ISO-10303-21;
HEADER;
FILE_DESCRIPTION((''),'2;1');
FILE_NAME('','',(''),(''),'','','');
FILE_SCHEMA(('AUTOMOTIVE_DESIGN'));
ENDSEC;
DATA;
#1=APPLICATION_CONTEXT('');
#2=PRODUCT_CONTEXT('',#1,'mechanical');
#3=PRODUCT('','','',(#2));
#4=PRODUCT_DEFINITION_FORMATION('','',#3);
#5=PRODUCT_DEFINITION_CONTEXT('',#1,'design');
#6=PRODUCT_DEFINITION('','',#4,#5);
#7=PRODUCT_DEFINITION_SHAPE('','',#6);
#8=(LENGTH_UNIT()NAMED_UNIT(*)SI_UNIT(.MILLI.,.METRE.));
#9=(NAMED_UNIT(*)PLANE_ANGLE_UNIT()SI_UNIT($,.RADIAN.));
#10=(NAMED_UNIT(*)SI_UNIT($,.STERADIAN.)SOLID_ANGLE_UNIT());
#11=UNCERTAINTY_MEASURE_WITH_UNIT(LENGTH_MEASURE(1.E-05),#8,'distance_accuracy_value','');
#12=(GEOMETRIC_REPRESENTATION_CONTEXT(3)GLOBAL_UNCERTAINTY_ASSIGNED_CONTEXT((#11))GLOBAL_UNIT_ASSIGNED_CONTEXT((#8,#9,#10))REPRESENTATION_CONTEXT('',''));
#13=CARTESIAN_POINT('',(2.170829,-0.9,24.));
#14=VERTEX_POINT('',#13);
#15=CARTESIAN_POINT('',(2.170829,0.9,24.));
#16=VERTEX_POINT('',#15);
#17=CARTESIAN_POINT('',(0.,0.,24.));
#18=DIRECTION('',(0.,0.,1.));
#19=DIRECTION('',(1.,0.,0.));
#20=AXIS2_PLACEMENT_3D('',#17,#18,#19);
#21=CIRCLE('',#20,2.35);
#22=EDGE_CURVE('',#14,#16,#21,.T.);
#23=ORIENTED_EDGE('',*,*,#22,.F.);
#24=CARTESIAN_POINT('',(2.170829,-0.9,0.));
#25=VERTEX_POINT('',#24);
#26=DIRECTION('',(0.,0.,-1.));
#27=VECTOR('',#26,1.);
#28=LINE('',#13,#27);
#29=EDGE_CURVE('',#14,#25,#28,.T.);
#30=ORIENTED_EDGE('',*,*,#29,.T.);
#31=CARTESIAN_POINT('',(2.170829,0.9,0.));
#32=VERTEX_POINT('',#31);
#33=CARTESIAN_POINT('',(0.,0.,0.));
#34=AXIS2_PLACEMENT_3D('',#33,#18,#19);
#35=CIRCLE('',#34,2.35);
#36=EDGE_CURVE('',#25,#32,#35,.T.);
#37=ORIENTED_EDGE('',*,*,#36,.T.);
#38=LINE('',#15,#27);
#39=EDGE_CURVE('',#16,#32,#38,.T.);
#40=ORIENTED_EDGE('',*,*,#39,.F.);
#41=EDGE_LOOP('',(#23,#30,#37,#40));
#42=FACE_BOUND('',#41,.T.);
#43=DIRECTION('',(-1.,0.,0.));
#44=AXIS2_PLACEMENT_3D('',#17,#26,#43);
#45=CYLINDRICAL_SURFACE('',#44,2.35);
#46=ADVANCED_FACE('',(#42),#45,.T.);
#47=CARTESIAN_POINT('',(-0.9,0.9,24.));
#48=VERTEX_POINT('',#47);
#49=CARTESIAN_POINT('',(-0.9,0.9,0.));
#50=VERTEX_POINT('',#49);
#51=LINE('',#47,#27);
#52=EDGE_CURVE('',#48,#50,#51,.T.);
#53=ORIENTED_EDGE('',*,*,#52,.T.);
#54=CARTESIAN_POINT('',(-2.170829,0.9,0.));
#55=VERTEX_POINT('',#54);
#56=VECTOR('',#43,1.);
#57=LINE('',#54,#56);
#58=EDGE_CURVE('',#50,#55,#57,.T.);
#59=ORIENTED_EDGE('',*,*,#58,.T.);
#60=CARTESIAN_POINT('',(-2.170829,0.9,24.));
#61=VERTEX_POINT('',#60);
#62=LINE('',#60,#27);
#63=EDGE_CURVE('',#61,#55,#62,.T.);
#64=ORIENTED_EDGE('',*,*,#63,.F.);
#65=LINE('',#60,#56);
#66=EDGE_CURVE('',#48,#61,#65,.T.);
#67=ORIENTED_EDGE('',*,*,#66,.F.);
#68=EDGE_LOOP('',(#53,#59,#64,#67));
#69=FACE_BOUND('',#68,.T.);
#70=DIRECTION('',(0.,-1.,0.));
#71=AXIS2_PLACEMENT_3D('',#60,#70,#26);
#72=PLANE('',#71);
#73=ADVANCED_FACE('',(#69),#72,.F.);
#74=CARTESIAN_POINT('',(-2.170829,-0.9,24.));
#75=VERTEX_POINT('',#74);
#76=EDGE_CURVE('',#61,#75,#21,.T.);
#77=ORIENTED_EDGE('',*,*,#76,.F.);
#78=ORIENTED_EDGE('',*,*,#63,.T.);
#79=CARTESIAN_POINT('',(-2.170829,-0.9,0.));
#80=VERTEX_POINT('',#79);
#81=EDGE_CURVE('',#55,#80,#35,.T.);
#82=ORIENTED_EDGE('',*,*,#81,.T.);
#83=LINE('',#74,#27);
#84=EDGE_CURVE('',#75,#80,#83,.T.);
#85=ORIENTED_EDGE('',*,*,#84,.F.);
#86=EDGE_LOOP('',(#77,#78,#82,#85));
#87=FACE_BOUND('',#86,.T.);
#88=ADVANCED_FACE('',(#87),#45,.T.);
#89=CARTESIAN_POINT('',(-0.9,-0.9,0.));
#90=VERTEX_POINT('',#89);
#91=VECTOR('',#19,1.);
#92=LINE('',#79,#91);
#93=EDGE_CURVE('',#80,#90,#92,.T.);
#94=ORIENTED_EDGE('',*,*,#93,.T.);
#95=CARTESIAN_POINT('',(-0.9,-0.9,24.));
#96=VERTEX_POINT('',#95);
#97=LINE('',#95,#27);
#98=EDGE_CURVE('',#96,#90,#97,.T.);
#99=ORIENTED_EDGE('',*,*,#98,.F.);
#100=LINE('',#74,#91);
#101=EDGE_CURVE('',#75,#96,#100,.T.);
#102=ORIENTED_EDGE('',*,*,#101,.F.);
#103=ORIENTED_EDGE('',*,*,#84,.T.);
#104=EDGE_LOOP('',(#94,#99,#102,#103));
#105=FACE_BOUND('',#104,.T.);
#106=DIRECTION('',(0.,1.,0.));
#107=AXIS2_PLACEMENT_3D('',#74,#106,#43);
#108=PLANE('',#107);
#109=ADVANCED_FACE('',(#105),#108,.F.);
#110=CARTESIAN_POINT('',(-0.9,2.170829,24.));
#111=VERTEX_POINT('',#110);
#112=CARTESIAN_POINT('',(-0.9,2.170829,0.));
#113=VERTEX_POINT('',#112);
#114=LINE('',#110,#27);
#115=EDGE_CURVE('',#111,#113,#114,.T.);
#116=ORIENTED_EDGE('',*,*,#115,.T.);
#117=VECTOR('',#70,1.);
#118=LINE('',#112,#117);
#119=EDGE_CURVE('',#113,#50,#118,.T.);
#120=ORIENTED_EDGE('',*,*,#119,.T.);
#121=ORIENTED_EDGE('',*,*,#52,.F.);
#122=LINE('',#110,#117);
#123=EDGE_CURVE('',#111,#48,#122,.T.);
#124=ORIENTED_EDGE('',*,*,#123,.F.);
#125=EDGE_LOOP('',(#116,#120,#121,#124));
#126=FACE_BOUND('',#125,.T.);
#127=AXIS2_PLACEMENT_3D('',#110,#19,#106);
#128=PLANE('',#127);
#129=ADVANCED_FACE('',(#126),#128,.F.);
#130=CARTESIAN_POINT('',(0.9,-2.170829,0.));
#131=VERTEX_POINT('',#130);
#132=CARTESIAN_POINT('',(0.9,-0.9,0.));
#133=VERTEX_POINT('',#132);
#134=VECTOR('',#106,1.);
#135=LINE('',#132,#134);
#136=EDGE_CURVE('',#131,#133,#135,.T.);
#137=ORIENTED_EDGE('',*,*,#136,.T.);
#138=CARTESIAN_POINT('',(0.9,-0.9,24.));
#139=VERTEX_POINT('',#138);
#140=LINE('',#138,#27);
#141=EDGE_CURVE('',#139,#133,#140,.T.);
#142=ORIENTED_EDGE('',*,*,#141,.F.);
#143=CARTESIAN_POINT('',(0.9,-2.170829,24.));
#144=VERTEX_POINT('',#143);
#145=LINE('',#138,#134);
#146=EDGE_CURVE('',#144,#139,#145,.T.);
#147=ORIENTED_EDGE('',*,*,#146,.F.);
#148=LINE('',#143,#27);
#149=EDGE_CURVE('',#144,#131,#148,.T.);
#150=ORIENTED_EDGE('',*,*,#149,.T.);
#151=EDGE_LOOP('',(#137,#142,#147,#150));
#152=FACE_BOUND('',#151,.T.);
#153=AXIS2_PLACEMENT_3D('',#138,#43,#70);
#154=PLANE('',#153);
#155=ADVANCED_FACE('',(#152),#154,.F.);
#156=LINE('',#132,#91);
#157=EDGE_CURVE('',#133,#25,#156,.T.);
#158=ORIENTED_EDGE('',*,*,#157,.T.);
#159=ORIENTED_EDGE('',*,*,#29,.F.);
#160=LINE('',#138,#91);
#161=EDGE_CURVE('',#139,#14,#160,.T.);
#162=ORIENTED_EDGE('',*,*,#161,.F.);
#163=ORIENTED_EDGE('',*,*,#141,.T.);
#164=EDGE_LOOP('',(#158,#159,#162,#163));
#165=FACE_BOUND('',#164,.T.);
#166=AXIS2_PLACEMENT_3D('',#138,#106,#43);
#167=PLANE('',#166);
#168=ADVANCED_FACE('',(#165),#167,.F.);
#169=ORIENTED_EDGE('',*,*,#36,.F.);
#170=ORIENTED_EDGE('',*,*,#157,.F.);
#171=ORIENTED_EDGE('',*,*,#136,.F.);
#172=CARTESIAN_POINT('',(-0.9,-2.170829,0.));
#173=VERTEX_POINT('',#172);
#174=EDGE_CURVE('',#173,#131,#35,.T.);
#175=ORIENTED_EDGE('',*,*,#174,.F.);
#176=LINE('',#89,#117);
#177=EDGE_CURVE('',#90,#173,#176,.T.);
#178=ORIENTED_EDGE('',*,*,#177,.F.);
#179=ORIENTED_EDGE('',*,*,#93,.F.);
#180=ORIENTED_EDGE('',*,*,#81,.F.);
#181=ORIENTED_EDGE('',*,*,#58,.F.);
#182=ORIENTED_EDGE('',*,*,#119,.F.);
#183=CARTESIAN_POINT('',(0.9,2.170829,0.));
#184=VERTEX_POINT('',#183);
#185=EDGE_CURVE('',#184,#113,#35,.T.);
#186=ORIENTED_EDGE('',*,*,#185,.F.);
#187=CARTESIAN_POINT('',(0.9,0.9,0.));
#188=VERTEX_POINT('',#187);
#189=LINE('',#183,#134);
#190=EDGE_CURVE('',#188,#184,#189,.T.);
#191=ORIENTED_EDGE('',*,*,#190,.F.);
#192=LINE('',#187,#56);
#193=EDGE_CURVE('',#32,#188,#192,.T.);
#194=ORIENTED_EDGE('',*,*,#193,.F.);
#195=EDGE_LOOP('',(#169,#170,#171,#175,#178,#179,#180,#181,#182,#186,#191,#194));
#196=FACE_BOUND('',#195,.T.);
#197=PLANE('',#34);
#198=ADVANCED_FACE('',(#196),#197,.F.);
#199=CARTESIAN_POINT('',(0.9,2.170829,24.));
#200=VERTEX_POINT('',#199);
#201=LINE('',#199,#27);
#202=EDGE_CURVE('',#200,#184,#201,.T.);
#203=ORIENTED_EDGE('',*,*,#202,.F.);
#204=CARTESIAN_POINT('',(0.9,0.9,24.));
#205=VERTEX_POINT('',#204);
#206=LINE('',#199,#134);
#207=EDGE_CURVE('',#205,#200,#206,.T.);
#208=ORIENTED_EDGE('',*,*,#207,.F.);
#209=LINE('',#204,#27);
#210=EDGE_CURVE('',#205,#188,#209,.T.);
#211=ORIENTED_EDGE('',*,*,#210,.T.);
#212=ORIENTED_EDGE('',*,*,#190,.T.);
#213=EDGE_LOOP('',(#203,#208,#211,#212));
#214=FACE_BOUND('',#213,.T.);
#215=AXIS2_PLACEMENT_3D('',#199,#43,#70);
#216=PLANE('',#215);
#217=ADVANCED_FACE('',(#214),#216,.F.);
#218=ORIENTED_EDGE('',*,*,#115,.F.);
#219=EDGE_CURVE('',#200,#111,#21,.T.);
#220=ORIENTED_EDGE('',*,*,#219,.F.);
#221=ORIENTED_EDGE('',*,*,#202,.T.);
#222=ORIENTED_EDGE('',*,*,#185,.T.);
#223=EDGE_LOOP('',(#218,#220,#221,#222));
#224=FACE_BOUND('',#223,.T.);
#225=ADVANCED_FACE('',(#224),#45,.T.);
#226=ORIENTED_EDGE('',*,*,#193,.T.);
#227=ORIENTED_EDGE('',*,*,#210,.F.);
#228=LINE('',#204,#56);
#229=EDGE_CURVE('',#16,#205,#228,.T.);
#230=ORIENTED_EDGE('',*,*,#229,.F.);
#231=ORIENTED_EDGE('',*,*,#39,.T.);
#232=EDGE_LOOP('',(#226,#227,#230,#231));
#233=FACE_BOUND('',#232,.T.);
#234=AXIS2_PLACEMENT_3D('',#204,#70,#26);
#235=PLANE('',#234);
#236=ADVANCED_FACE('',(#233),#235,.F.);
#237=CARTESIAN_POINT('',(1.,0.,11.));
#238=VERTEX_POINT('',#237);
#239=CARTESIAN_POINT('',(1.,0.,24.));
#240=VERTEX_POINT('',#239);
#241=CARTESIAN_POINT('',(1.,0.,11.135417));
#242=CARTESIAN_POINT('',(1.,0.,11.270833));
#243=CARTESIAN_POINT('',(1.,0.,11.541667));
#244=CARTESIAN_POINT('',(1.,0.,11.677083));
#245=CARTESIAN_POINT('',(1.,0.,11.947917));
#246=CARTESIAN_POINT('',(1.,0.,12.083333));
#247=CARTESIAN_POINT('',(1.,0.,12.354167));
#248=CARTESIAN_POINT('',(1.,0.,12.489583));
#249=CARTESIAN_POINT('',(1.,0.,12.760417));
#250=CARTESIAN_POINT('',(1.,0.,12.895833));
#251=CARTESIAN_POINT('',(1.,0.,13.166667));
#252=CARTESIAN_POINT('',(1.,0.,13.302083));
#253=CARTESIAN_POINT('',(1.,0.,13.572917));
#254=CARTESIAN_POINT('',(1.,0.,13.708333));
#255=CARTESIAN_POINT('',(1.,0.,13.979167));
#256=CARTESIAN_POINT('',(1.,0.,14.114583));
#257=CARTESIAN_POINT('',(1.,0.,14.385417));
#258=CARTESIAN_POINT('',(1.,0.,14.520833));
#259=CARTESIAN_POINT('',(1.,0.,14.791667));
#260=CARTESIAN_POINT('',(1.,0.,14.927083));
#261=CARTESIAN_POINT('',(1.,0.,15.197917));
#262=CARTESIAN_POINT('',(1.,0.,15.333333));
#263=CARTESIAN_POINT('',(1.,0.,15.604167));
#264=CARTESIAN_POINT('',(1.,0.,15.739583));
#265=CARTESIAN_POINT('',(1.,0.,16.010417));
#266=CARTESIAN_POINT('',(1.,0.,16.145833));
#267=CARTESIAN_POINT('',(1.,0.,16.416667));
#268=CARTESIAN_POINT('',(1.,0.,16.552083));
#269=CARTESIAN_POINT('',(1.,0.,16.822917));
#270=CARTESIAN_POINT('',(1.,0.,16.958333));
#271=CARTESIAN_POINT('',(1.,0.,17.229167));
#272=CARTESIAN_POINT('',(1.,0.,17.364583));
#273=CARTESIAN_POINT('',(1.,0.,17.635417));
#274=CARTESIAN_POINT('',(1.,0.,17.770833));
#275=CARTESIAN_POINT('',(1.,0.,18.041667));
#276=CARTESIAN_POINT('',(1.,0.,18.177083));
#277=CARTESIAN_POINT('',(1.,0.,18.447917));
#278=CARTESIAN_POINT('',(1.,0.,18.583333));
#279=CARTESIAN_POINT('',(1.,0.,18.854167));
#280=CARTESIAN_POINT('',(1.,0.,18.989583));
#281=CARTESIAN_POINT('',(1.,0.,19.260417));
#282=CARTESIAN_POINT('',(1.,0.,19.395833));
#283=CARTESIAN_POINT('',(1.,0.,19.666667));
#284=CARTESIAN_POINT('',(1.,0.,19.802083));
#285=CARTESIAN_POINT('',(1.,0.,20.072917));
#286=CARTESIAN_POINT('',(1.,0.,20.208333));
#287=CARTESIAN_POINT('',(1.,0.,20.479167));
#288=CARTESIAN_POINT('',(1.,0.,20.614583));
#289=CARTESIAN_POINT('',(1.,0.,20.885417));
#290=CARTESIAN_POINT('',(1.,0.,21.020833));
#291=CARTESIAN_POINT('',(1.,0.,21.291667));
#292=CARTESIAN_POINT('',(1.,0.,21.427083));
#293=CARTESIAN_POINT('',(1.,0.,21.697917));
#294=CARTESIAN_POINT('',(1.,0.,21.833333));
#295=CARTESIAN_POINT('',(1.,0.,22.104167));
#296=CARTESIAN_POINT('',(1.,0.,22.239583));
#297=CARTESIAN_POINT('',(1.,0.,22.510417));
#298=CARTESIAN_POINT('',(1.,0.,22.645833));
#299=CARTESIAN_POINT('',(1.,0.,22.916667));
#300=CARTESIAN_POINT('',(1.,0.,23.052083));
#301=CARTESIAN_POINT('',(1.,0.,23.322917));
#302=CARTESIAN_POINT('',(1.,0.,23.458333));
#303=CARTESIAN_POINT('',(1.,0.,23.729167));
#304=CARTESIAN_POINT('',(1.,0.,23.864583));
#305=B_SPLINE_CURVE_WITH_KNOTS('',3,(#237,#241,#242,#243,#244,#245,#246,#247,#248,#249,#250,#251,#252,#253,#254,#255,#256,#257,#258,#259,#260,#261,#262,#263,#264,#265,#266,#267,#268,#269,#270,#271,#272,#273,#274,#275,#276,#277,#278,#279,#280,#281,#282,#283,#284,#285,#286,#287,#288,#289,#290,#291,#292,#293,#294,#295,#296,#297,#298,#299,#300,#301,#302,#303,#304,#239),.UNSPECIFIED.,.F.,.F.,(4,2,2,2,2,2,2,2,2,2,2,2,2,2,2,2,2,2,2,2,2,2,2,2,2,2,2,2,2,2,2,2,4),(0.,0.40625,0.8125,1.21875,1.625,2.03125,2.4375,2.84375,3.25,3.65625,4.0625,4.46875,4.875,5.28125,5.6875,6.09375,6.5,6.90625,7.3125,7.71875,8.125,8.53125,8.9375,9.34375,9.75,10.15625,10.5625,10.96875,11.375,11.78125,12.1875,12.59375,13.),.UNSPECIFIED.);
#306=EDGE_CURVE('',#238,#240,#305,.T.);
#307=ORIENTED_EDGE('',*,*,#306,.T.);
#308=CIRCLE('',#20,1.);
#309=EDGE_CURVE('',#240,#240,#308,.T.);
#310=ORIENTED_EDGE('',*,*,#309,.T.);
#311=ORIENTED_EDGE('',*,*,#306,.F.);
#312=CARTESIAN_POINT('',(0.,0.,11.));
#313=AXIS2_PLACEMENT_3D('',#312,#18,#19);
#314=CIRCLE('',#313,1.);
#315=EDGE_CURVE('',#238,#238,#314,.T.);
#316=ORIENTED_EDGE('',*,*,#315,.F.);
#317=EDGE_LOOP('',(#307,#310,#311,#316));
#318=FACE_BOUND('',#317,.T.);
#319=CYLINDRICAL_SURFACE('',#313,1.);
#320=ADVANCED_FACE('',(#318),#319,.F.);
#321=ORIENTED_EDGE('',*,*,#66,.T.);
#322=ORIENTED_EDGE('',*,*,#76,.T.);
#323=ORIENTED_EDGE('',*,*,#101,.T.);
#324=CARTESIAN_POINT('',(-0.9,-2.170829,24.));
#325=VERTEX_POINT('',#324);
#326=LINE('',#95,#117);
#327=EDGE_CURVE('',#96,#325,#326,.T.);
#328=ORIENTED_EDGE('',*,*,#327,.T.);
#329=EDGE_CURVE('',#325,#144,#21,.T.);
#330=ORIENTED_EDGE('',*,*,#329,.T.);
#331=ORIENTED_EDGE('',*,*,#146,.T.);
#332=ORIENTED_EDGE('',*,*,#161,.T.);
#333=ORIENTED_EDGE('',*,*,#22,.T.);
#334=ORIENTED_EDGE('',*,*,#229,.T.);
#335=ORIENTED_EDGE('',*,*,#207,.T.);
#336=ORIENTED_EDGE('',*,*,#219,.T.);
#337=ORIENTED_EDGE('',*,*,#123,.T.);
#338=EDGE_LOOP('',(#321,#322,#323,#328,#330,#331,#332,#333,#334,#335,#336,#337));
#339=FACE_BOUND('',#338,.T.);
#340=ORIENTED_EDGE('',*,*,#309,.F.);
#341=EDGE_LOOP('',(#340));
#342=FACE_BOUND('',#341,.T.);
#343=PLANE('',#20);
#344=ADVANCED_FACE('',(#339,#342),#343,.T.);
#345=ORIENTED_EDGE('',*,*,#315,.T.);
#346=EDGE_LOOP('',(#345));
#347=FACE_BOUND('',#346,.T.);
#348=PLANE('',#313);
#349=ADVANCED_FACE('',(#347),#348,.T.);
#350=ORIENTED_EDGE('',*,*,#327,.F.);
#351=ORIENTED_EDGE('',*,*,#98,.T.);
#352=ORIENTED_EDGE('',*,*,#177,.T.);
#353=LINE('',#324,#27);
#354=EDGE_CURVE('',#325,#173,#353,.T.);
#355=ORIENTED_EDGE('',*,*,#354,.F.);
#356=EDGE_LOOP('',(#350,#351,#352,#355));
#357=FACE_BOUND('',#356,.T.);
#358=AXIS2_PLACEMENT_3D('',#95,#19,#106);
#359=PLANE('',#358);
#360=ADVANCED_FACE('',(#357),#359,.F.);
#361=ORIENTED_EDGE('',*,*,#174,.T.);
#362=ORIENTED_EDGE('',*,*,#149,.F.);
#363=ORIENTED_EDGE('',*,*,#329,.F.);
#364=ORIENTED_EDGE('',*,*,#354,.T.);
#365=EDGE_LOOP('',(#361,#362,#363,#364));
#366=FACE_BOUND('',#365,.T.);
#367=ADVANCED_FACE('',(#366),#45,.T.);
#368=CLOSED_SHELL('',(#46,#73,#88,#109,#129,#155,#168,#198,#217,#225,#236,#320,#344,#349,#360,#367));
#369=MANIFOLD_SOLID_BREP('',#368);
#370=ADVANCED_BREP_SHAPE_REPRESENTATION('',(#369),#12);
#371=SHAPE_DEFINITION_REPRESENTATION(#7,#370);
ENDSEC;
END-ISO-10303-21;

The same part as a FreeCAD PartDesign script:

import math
import FreeCAD as App
import Part
import Sketcher

doc = App.newDocument("Part")
body = doc.addObject("PartDesign::Body", "Body")

sketch1 = body.newObject("Sketcher::SketchObject", "Sketch")
sketch1.AttachmentSupport = (doc.getObject("XY_Plane"), [""])
sketch1.MapMode = "FlatFace"
sketch1.addGeometry(Part.LineSegment(App.Vector(-0.9, 2.2, 0), App.Vector(-0.9, 0.9, 0)), False)
sketch1.addGeometry(Part.LineSegment(App.Vector(-0.9, 0.9, 0), App.Vector(-2.2, 0.9, 0)), False)
sketch1.addGeometry(Part.ArcOfCircle(Part.Circle(App.Vector(0, 0, 0), App.Vector(0, 0, 1), 2.4), math.radians(157), math.radians(203)), False)
sketch1.addGeometry(Part.LineSegment(App.Vector(-2.2, -0.9, 0), App.Vector(-0.9, -0.9, 0)), False)
sketch1.addGeometry(Part.LineSegment(App.Vector(-0.9, -0.9, 0), App.Vector(-0.9, -2.2, 0)), False)
sketch1.addGeometry(Part.ArcOfCircle(Part.Circle(App.Vector(0, 0, 0), App.Vector(0, 0, 1), 2.4), math.radians(-113), math.radians(-67)), False)
sketch1.addGeometry(Part.LineSegment(App.Vector(0.9, -2.2, 0), App.Vector(0.9, -0.9, 0)), False)
sketch1.addGeometry(Part.LineSegment(App.Vector(0.9, -0.9, 0), App.Vector(2.2, -0.9, 0)), False)
sketch1.addGeometry(Part.ArcOfCircle(Part.Circle(App.Vector(0, 0, 0), App.Vector(0, 0, 1), 2.4), math.radians(-23), math.radians(23)), False)
sketch1.addGeometry(Part.LineSegment(App.Vector(2.2, 0.9, 0), App.Vector(0.9, 0.9, 0)), False)
sketch1.addGeometry(Part.LineSegment(App.Vector(0.9, 0.9, 0), App.Vector(0.9, 2.2, 0)), False)
sketch1.addGeometry(Part.ArcOfCircle(Part.Circle(App.Vector(0, 0, 0), App.Vector(0, 0, 1), 2.4), math.radians(67), math.radians(113)), False)
sketch1.addConstraint(Sketcher.Constraint("Coincident", 0, 2, 1, 1))
sketch1.addConstraint(Sketcher.Constraint("Coincident", 1, 2, 2, 1))
sketch1.addConstraint(Sketcher.Constraint("Coincident", 2, 2, 3, 1))
sketch1.addConstraint(Sketcher.Constraint("Coincident", 3, 2, 4, 1))
sketch1.addConstraint(Sketcher.Constraint("Coincident", 4, 2, 5, 1))
sketch1.addConstraint(Sketcher.Constraint("Coincident", 5, 2, 6, 1))
sketch1.addConstraint(Sketcher.Constraint("Coincident", 6, 2, 7, 1))
sketch1.addConstraint(Sketcher.Constraint("Coincident", 7, 2, 8, 1))
sketch1.addConstraint(Sketcher.Constraint("Coincident", 8, 2, 9, 1))
sketch1.addConstraint(Sketcher.Constraint("Coincident", 9, 2, 10, 1))
sketch1.addConstraint(Sketcher.Constraint("Coincident", 10, 2, 11, 1))
sketch1.addConstraint(Sketcher.Constraint("Coincident", 11, 2, 0, 1))
sketch1.addConstraint(Sketcher.Constraint("Vertical", 0))
sketch1.addConstraint(Sketcher.Constraint("Horizontal", 1))
sketch1.addConstraint(Sketcher.Constraint("Horizontal", 3))
sketch1.addConstraint(Sketcher.Constraint("Vertical", 4))
sketch1.addConstraint(Sketcher.Constraint("Vertical", 6))
sketch1.addConstraint(Sketcher.Constraint("Horizontal", 7))
sketch1.addConstraint(Sketcher.Constraint("Horizontal", 9))
sketch1.addConstraint(Sketcher.Constraint("Vertical", 10))
sketch1.addConstraint(Sketcher.Constraint("Coincident", 2, 3, -1, 1))
sketch1.addConstraint(Sketcher.Constraint("Coincident", 5, 3, -1, 1))
sketch1.addConstraint(Sketcher.Constraint("Coincident", 8, 3, -1, 1))
sketch1.addConstraint(Sketcher.Constraint("Coincident", 11, 3, -1, 1))
sketch1.addConstraint(Sketcher.Constraint("Equal", 2, 5))
sketch1.addConstraint(Sketcher.Constraint("Equal", 5, 8))
sketch1.addConstraint(Sketcher.Constraint("Equal", 8, 11))
sketch1.addConstraint(Sketcher.Constraint("Symmetric", 0, 2, 6, 2, -1, 1))
sketch1.addConstraint(Sketcher.Constraint("Symmetric", 3, 2, 9, 2, -1, 1))
sketch1.addConstraint(Sketcher.Constraint("Symmetric", 3, 2, 6, 2, -2))
sketch1.addConstraint(Sketcher.Constraint("Equal", 9, 0))
sketch1.addConstraint(Sketcher.Constraint("Radius", 2, 2.35))
sketch1.addConstraint(Sketcher.Constraint("DistanceX", 0, 2, -1, 1, 0.9))
pad1 = body.newObject("PartDesign::Pad", "Pad")
pad1.Profile = sketch1
pad1.Length = 24

sketch2 = body.newObject("Sketcher::SketchObject", "Sketch001")
sketch2.AttachmentSupport = (doc.getObject("XY_Plane"), [""])
sketch2.MapMode = "FlatFace"
sketch2.AttachmentOffset = App.Placement(App.Vector(0, 0, 24), App.Rotation())
sketch2.addGeometry(Part.Circle(App.Vector(0, 0, 0), App.Vector(0, 0, 1), 1), False)
sketch2.addConstraint(Sketcher.Constraint("Coincident", 0, 3, -1, 1))
sketch2.addConstraint(Sketcher.Constraint("Diameter", 0, 2.0))
pocket1 = body.newObject("PartDesign::Pocket", "Pocket")
pocket1.Profile = sketch2
pocket1.Length = 13

doc.recompute()
